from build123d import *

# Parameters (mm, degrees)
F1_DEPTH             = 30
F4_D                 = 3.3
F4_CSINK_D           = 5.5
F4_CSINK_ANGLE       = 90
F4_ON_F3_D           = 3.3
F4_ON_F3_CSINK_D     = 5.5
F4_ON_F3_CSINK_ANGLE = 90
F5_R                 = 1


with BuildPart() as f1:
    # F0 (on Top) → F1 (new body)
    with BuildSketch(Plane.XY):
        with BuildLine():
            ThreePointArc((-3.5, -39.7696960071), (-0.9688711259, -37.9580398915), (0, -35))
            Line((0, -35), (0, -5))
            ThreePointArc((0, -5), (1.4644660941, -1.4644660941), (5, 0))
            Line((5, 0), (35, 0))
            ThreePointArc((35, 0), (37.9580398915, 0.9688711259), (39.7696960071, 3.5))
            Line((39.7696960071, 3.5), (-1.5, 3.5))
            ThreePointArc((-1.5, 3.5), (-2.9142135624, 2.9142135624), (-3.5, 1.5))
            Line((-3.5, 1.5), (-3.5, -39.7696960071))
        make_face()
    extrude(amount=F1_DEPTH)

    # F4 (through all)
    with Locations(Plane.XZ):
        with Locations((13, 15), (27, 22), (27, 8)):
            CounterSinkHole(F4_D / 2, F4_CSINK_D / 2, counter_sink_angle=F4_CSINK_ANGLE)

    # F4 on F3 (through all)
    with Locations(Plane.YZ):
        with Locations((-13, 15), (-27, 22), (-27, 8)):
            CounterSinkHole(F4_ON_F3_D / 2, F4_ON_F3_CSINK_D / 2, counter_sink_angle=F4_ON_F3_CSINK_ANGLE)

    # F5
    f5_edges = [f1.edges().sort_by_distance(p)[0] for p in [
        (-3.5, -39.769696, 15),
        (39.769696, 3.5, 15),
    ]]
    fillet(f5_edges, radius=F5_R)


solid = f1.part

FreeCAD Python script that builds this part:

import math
import FreeCAD as App
import Part
import Sketcher
from FreeCAD import Vector
Q = App.Units.Quantity


def edges_at(feature, points):
    """Names of the edges that pass closest to the given points."""
    edges = feature.Shape.Edges
    near = lambda p: min(range(len(edges)), key=lambda i: edges[i].distToShape(Part.Vertex(*p))[0])
    return sorted({f"Edge{near(p) + 1}" for p in points})

doc = App.newDocument("Part")
body = doc.addObject("PartDesign::Body", "Body")

sketch1 = body.newObject("Sketcher::SketchObject", "Sketch")
sketch1.AttachmentSupport = (doc.getObject("XY_Plane"), [""])
sketch1.MapMode = "FlatFace"
sketch1.addGeometry(Part.ArcOfCircle(Part.Circle(Vector(-5, -35, 0), Vector(0, 0, 1), 5), math.radians(-73), math.radians(0)), False)
sketch1.addGeometry(Part.LineSegment(Vector(0, -35, 0), Vector(0, -5, 0)), False)
sketch1.addGeometry(Part.ArcOfCircle(Part.Circle(Vector(5, -5, 0), Vector(0, 0, 1), 5), math.radians(90), math.radians(180)), False)
sketch1.addGeometry(Part.LineSegment(Vector(5, 0, 0), Vector(35, 0, 0)), False)
sketch1.addGeometry(Part.ArcOfCircle(Part.Circle(Vector(35, 5, 0), Vector(0, 0, 1), 5), math.radians(-90), math.radians(-17)), False)
sketch1.addGeometry(Part.LineSegment(Vector(39.8, 3.5, 0), Vector(-1.5, 3.5, 0)), False)
sketch1.addGeometry(Part.ArcOfCircle(Part.Circle(Vector(-1.5, 1.5, 0), Vector(0, 0, 1), 2), math.radians(90), math.radians(180)), False)
sketch1.addGeometry(Part.LineSegment(Vector(-3.5, 1.5, 0), Vector(-3.5, -39.8, 0)), False)
sketch1.addConstraint(Sketcher.Constraint("Tangent", 0, 2, 1, 1))
sketch1.addConstraint(Sketcher.Constraint("Tangent", 1, 2, 2, 2))
sketch1.addConstraint(Sketcher.Constraint("Tangent", 2, 1, 3, 1))
sketch1.addConstraint(Sketcher.Constraint("Tangent", 3, 2, 4, 1))
sketch1.addConstraint(Sketcher.Constraint("Coincident", 4, 2, 5, 1))
sketch1.addConstraint(Sketcher.Constraint("Tangent", 5, 2, 6, 1))
sketch1.addConstraint(Sketcher.Constraint("Tangent", 6, 2, 7, 1))
sketch1.addConstraint(Sketcher.Constraint("Coincident", 7, 2, 0, 1))
sketch1.addConstraint(Sketcher.Constraint("Vertical", 1))
sketch1.addConstraint(Sketcher.Constraint("Horizontal", 3))
sketch1.addConstraint(Sketcher.Constraint("Horizontal", 5))
sketch1.addConstraint(Sketcher.Constraint("Vertical", 7))
sketch1.addConstraint(Sketcher.Constraint("Equal", 0, 2))
sketch1.addConstraint(Sketcher.Constraint("Equal", 2, 4))
sketch1.addConstraint(Sketcher.Constraint("PointOnObject", 0, 2, -2))
sketch1.addConstraint(Sketcher.Constraint("PointOnObject", 2, 1, -1))
sketch1.addConstraint(Sketcher.Constraint("Equal", 3, 1))
sketch1.addConstraint(Sketcher.Constraint("Equal", 5, 7))
sketch1.addConstraint(Sketcher.Constraint("Radius", 0, Q("5 mm")))
sketch1.addConstraint(Sketcher.Constraint("Radius", 6, Q("2 mm")))
sketch1.addConstraint(Sketcher.Constraint("DistanceX", 3, 1, 3, 2, Q("30 mm")))
sketch1.addConstraint(Sketcher.Constraint("DistanceX", 6, 3, -1, 1, Q("1.5 mm")))
pad1 = body.newObject("PartDesign::Pad", "Pad")
pad1.Profile = sketch1
pad1.Length = 30

sketch2 = body.newObject("Sketcher::SketchObject", "Sketch001")
sketch2.AttachmentSupport = (doc.getObject("XZ_Plane"), [""])
sketch2.MapMode = "FlatFace"
sketch2.addGeometry(Part.Circle(Vector(13, 15, 0), Vector(0, 0, 1), 1.6), False)
sketch2.addGeometry(Part.Circle(Vector(27, 22, 0), Vector(0, 0, 1), 1.6), False)
sketch2.addGeometry(Part.Circle(Vector(27, 8, 0), Vector(0, 0, 1), 1.6), False)
sketch2.addConstraint(Sketcher.Constraint("Equal", 0, 1))
sketch2.addConstraint(Sketcher.Constraint("Equal", 1, 2))
sketch2.addConstraint(Sketcher.Constraint("Vertical", 1, 3, 2, 3))
sketch2.addConstraint(Sketcher.Constraint("Diameter", 0, Q("3.3 mm")))
sketch2.addConstraint(Sketcher.Constraint("DistanceX", -1, 1, 0, 3, Q("13 mm")))
sketch2.addConstraint(Sketcher.Constraint("DistanceY", -1, 1, 0, 3, Q("15 mm")))
sketch2.addConstraint(Sketcher.Constraint("DistanceX", -1, 1, 1, 3, Q("27 mm")))
sketch2.addConstraint(Sketcher.Constraint("DistanceY", -1, 1, 1, 3, Q("22 mm")))
sketch2.addConstraint(Sketcher.Constraint("DistanceY", -1, 1, 2, 3, Q("8 mm")))
doc.recompute()
hole = body.newObject("PartDesign::Hole", "Hole")
hole.Profile = sketch2
hole.ThreadType = "None"
hole.Diameter = 3.3
hole.DepthType = "ThroughAll"
hole.HoleCutType = "Countersink"
hole.HoleCutDiameter = 5.5
hole.HoleCutCountersinkAngle = 90

sketch3 = body.newObject("Sketcher::SketchObject", "Sketch002")
sketch3.AttachmentSupport = (doc.getObject("YZ_Plane"), [""])
sketch3.MapMode = "FlatFace"
sketch3.addGeometry(Part.Circle(Vector(-13, 15, 0), Vector(0, 0, 1), 1.6), False)
sketch3.addGeometry(Part.Circle(Vector(-27, 22, 0), Vector(0, 0, 1), 1.6), False)
sketch3.addGeometry(Part.Circle(Vector(-27, 8, 0), Vector(0, 0, 1), 1.6), False)
sketch3.addConstraint(Sketcher.Constraint("Equal", 0, 1))
sketch3.addConstraint(Sketcher.Constraint("Equal", 1, 2))
sketch3.addConstraint(Sketcher.Constraint("Vertical", 1, 3, 2, 3))
sketch3.addConstraint(Sketcher.Constraint("Diameter", 0, Q("3.3 mm")))
sketch3.addConstraint(Sketcher.Constraint("DistanceX", 0, 3, -1, 1, Q("13 mm")))
sketch3.addConstraint(Sketcher.Constraint("DistanceY", -1, 1, 0, 3, Q("15 mm")))
sketch3.addConstraint(Sketcher.Constraint("DistanceX", 1, 3, -1, 1, Q("27 mm")))
sketch3.addConstraint(Sketcher.Constraint("DistanceY", -1, 1, 1, 3, Q("22 mm")))
sketch3.addConstraint(Sketcher.Constraint("DistanceY", -1, 1, 2, 3, Q("8 mm")))
doc.recompute()
hole2 = body.newObject("PartDesign::Hole", "Hole001")
hole2.Profile = sketch3
hole2.ThreadType = "None"
hole2.Diameter = 3.3
hole2.DepthType = "ThroughAll"
hole2.HoleCutType = "Countersink"
hole2.HoleCutDiameter = 5.5
hole2.HoleCutCountersinkAngle = 90
doc.recompute()

fillet = body.newObject("PartDesign::Fillet", "Fillet")
fillet.Base = (hole2, edges_at(hole2, [(-3.5, -39.77, 15), (39.77, 3.5, 15)]))
fillet.Radius = 1

doc.recompute()
